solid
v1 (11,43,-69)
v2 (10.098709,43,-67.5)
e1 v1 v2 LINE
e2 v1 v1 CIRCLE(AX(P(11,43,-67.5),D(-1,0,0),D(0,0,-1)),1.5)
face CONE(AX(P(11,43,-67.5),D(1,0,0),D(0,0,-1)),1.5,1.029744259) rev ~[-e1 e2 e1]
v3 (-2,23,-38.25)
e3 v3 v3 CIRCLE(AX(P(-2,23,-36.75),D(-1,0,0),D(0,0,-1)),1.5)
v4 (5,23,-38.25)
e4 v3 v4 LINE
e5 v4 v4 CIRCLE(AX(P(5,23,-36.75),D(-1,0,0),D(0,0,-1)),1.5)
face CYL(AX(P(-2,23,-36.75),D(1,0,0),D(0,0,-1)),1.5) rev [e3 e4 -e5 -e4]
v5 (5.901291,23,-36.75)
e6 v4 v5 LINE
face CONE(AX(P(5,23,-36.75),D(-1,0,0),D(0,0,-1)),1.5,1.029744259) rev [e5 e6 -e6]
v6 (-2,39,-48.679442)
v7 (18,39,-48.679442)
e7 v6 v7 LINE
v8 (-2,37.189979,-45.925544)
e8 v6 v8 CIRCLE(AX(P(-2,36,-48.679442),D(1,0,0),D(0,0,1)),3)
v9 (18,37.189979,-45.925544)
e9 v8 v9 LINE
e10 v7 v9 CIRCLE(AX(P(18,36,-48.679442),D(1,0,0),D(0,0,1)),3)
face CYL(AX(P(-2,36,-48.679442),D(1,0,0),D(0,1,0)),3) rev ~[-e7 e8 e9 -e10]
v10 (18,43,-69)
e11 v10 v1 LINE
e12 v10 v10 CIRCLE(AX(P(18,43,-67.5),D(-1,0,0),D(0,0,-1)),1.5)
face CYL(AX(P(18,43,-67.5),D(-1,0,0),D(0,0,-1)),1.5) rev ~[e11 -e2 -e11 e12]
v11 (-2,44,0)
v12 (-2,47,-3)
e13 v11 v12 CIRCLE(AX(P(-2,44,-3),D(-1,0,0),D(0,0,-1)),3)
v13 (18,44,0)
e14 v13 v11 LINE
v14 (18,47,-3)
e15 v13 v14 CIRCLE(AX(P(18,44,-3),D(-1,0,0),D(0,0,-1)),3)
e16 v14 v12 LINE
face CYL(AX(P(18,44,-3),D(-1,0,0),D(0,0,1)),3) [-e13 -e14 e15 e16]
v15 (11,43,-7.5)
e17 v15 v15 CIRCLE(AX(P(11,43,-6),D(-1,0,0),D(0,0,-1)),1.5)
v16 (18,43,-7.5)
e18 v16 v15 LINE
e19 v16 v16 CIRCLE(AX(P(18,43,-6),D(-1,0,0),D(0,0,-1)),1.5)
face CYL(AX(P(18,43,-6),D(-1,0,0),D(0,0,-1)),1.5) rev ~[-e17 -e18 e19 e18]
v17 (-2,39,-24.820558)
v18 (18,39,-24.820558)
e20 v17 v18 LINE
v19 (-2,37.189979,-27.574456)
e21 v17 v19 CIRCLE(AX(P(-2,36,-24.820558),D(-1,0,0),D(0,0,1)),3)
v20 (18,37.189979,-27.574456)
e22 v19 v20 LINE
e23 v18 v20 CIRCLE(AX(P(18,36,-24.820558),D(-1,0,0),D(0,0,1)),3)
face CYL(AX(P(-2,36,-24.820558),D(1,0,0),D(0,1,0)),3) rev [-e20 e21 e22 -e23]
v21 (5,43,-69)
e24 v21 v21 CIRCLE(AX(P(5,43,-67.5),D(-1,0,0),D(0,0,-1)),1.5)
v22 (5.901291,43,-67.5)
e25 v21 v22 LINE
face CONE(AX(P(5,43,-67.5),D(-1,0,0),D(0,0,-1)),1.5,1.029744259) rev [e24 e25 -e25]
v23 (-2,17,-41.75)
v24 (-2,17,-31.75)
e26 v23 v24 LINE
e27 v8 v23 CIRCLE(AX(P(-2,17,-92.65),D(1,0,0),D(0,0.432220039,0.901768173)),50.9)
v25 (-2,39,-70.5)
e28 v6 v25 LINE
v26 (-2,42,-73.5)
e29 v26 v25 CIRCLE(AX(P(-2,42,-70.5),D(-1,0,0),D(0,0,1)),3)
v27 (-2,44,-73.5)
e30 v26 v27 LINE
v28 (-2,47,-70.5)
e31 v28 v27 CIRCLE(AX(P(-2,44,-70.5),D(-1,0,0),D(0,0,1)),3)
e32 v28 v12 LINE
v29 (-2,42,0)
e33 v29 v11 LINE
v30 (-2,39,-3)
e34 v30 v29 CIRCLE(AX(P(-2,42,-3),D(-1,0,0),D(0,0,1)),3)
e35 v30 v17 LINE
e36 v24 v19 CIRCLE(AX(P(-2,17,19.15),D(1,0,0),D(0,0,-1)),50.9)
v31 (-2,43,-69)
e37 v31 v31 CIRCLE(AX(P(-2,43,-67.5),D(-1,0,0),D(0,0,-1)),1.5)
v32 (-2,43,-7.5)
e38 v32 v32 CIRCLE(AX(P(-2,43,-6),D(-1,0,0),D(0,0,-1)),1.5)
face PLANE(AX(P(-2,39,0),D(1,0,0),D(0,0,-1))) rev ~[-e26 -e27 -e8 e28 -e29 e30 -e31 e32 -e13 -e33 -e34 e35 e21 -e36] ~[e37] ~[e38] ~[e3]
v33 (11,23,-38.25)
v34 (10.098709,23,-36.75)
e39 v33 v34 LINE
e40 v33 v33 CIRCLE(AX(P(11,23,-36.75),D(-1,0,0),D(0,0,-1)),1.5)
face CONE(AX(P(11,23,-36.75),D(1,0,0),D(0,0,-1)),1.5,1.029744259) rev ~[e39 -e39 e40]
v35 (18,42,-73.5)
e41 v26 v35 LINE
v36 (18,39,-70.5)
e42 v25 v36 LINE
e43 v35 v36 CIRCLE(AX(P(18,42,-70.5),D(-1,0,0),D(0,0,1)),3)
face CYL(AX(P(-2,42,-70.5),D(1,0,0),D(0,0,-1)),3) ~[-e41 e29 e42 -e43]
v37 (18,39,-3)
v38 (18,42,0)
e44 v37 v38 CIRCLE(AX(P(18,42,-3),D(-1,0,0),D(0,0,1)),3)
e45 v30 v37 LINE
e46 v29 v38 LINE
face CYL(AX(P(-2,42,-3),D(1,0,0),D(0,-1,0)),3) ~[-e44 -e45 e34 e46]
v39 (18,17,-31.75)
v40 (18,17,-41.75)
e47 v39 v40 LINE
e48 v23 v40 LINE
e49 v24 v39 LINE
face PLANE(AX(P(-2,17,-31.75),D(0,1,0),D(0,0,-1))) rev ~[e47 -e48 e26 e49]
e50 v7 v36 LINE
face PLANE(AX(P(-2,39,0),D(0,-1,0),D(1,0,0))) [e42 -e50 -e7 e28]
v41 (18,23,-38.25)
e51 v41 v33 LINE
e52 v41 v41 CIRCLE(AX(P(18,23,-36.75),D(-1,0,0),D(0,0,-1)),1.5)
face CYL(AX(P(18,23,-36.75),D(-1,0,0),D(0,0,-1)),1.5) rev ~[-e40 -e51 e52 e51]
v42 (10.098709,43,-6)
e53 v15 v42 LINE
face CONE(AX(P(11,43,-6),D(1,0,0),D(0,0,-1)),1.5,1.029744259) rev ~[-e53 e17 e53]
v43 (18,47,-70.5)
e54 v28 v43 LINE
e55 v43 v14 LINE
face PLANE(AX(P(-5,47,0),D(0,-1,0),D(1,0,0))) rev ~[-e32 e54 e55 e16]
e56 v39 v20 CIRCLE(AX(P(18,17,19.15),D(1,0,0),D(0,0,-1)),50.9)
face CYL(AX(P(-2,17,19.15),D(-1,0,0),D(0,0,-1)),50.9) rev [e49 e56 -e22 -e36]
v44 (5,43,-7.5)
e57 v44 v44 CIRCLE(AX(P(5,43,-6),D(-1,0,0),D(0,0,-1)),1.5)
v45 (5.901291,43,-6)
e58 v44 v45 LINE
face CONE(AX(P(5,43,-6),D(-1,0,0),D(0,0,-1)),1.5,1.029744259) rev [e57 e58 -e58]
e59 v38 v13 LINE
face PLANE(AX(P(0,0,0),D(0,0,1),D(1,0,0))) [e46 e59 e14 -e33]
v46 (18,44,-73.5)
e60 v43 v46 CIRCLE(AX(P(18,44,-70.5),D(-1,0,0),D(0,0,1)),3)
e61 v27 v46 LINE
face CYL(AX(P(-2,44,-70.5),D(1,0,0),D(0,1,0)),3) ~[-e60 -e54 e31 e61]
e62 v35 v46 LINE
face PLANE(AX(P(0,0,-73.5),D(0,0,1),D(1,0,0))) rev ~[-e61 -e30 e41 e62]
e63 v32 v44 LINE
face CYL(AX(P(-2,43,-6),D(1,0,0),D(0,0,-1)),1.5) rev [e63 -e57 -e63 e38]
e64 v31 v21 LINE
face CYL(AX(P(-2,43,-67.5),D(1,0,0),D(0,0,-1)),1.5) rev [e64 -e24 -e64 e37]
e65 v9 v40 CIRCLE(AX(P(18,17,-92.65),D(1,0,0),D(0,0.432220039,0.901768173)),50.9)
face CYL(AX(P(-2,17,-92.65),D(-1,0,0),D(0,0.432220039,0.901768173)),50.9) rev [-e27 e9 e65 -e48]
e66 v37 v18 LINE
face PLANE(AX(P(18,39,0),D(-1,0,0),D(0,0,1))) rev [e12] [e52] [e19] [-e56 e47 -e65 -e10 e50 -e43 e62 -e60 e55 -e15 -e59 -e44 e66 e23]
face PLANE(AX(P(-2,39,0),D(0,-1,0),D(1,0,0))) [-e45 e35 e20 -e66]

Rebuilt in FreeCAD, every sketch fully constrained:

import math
import FreeCAD as App
import Part
import Sketcher
from FreeCAD import Vector


def edges_at(feature, points):
    """Names of the edges that pass closest to the given points."""
    edges = feature.Shape.Edges
    near = lambda p: min(range(len(edges)), key=lambda i: edges[i].distToShape(Part.Vertex(*p))[0])
    return sorted({f"Edge{near(p) + 1}" for p in points})

doc = App.newDocument("Part")
body = doc.addObject("PartDesign::Body", "Body")

sketch1 = body.newObject("Sketcher::SketchObject", "Sketch")
sketch1.AttachmentSupport = (doc.getObject("XY_Plane"), [""])
sketch1.MapMode = "FlatFace"
sketch1.addGeometry([
    Part.LineSegment(Vector(-5, 0, 0), Vector(-2, 0, 0)),
    Part.LineSegment(Vector(-2, 0, 0), Vector(-2, 39, 0)),
    Part.LineSegment(Vector(-2, 39, 0), Vector(18, 39, 0)),
    Part.LineSegment(Vector(18, 39, 0), Vector(18, 0, 0)),
    Part.LineSegment(Vector(18, 0, 0), Vector(21, 0, 0)),
    Part.LineSegment(Vector(21, 0, 0), Vector(21, 47, 0)),
    Part.LineSegment(Vector(21, 47, 0), Vector(-5, 47, 0)),
    Part.LineSegment(Vector(-5, 47, 0), Vector(-5, 0, 0)),
], False)
sketch1.addConstraint([
    Sketcher.Constraint("Coincident", 0, 2, 1, 1),
    Sketcher.Constraint("Coincident", 1, 2, 2, 1),
    Sketcher.Constraint("Coincident", 2, 2, 3, 1),
    Sketcher.Constraint("Coincident", 3, 2, 4, 1),
    Sketcher.Constraint("Coincident", 4, 2, 5, 1),
    Sketcher.Constraint("Coincident", 5, 2, 6, 1),
    Sketcher.Constraint("Coincident", 6, 2, 7, 1),
    Sketcher.Constraint("Coincident", 7, 2, 0, 1),
    Sketcher.Constraint("Horizontal", 0),
    Sketcher.Constraint("Vertical", 1),
    Sketcher.Constraint("Horizontal", 2),
    Sketcher.Constraint("Vertical", 3),
    Sketcher.Constraint("Horizontal", 4),
    Sketcher.Constraint("Vertical", 5),
    Sketcher.Constraint("Horizontal", 6),
    Sketcher.Constraint("Vertical", 7),
    Sketcher.Constraint("PointOnObject", 0, 2, -1),
    Sketcher.Constraint("PointOnObject", 3, 2, -1),
    Sketcher.Constraint("Equal", 0, 4),
    Sketcher.Constraint("DistanceX", 0, 1, 0, 2, 3.0),
    Sketcher.Constraint("DistanceY", 1, 1, 1, 2, 39.0),
    Sketcher.Constraint("DistanceX", 0, 2, -1, 1, 2.0),
    Sketcher.Constraint("DistanceY", 2, 2, 5, 2, 8.0),
    Sketcher.Constraint("DistanceX", 2, 1, 2, 2, 20.0),
])
pad1 = body.newObject("PartDesign::Pad", "Pad")
pad1.Profile = sketch1
pad1.Length = 73.5
pad1.Reversed = True

sketch2 = body.newObject("Sketcher::SketchObject", "Sketch001")
sketch2.AttachmentSupport = (doc.getObject("YZ_Plane"), [""])
sketch2.MapMode = "FlatFace"
sketch2.AttachmentOffset = App.Placement(Vector(0, 0, -5), App.Rotation())
sketch2.addGeometry([
    Part.Circle(Vector(22.5, -12, 0), Vector(0, 0, 1), 3),
    Part.Circle(Vector(22.5, -61.5, 0), Vector(0, 0, 1), 3),
], False)
sketch2.addConstraint([
    Sketcher.Constraint("Equal", 0, 1),
    Sketcher.Constraint("Vertical", 0, 3, 1, 3),
    Sketcher.Constraint("Diameter", 0, 6.0),
    Sketcher.Constraint("DistanceY", 0, 3, -1, 1, 12.0),
    Sketcher.Constraint("DistanceX", -1, 1, 0, 3, 22.5),
    Sketcher.Constraint("DistanceY", 1, 3, -1, 1, 61.5),
])
pocket1 = body.newObject("PartDesign::Pocket", "Pocket")
pocket1.Profile = sketch2
pocket1.Type = "ThroughAll"
pocket1.Reversed = True

sketch3 = body.newObject("Sketcher::SketchObject", "Sketch002")
sketch3.AttachmentSupport = (doc.getObject("YZ_Plane"), [""])
sketch3.MapMode = "FlatFace"
sketch3.AttachmentOffset = App.Placement(Vector(0, 0, -5), App.Rotation())
sketch3.addGeometry([
    Part.LineSegment(Vector(-64, -25, 0), Vector(0, 0, 0)),
    Part.LineSegment(Vector(0, 0, 0), Vector(0, -74, 0)),
    Part.LineSegment(Vector(0, -74, 0), Vector(-64, -49, 0)),
    Part.ArcOfCircle(Part.Circle(Vector(-60, -37, 0), Vector(0, 0, 1), 13), math.radians(111), math.radians(249)),
    Part.Circle(Vector(-60, -37, 0), Vector(0, 0, 1), 5),
], False)
sketch3.addConstraint([
    Sketcher.Constraint("Coincident", 0, 2, 1, 1),
    Sketcher.Constraint("Coincident", 1, 2, 2, 1),
    Sketcher.Constraint("Tangent", 2, 2, 3, 2),
    Sketcher.Constraint("Tangent", 3, 1, 0, 1),
    Sketcher.Constraint("Vertical", 1),
    Sketcher.Constraint("Coincident", 0, 2, -1, 1),
    Sketcher.Constraint("Coincident", 4, 3, 3, 3),
    Sketcher.Constraint("Vertical", 2, 2, 3, 1),
    Sketcher.Constraint("Diameter", 4, 10.0),
    Sketcher.Constraint("Radius", 3, 13.0),
    Sketcher.Constraint("DistanceY", 1, 2, 1, 1, 73.5),
    Sketcher.Constraint("DistanceX", 3, 3, -1, 1, 59.712),
])
pad2 = body.newObject("PartDesign::Pad", "Pad001")
pad2.Profile = sketch3
pad2.Length = 3
doc.recompute()

datumplane = body.newObject("PartDesign::Plane", "DatumPlane")
datumplane.AttachmentSupport = (doc.getObject("YZ_Plane"), [""])
datumplane.MapMode = "FlatFace"
datumplane.AttachmentOffset = App.Placement(Vector(0, 0, 8), App.Rotation())
mirrored = body.newObject("PartDesign::Mirrored", "Mirrored")
mirrored.Originals = [pad2]
mirrored.MirrorPlane = (datumplane, [""])
body.Tip = mirrored

sketch4 = body.newObject("Sketcher::SketchObject", "Sketch003")
sketch4.AttachmentSupport = (doc.getObject("YZ_Plane"), [""])
sketch4.MapMode = "FlatFace"
sketch4.AttachmentOffset = App.Placement(Vector(0, 0, -2), App.Rotation())
sketch4.addGeometry([
    Part.ArcOfCircle(Part.Circle(Vector(17, 19, 0), Vector(0, 0, 1), 51), math.radians(-90), math.radians(-64)),
    Part.LineSegment(Vector(17, -32, 0), Vector(17, -42, 0)),
    Part.ArcOfCircle(Part.Circle(Vector(17, -93, 0), Vector(0, 0, 1), 51), math.radians(64), math.radians(90)),
    Part.LineSegment(Vector(39, -47, 0), Vector(39, -27, 0)),
], False)
sketch4.addConstraint([
    Sketcher.Constraint("Coincident", 0, 1, 1, 1),
    Sketcher.Constraint("Coincident", 1, 2, 2, 2),
    Sketcher.Constraint("Coincident", 2, 1, 3, 1),
    Sketcher.Constraint("Coincident", 3, 2, 0, 2),
    Sketcher.Constraint("Vertical", 1),
    Sketcher.Constraint("Vertical", 3),
    Sketcher.Constraint("Equal", 0, 2),
    Sketcher.Constraint("Vertical", 0, 3, 2, 3),
    Sketcher.Constraint("Vertical", 2, 3, 0, 1),
    Sketcher.Constraint("DistanceY", 1, 2, 1, 1, 10.0),
    Sketcher.Constraint("Radius", 0, 50.9),
    Sketcher.Constraint("DistanceY", 3, 1, 3, 2, 20.0),
    Sketcher.Constraint("DistanceX", -1, 1, 0, 3, 17.0),
    Sketcher.Constraint("DistanceY", -1, 1, 0, 3, 19.15),
])
pad3 = body.newObject("PartDesign::Pad", "Pad002")
pad3.Profile = sketch4
pad3.Length = 20

sketch5 = body.newObject("Sketcher::SketchObject", "Sketch004")
sketch5.AttachmentSupport = (doc.getObject("YZ_Plane"), [""])
sketch5.MapMode = "FlatFace"
sketch5.AttachmentOffset = App.Placement(Vector(0, 0, -2), App.Rotation())
sketch5.addGeometry([
    Part.LineSegment(Vector(63, -93, 0), Vector(63, 19, 0)),
    Part.LineSegment(Vector(63, 19, 0), Vector(-88, 19, 0)),
    Part.LineSegment(Vector(-88, 19, 0), Vector(-88, -93, 0)),
    Part.LineSegment(Vector(-88, -93, 0), Vector(63, -93, 0)),
], False)
sketch5.addConstraint([
    Sketcher.Constraint("Coincident", 0, 2, 1, 1),
    Sketcher.Constraint("Coincident", 1, 2, 2, 1),
    Sketcher.Constraint("Coincident", 2, 2, 3, 1),
    Sketcher.Constraint("Coincident", 3, 2, 0, 1),
    Sketcher.Constraint("Vertical", 0),
    Sketcher.Constraint("Horizontal", 1),
    Sketcher.Constraint("Vertical", 2),
    Sketcher.Constraint("Horizontal", 3),
    Sketcher.Constraint("DistanceY", 0, 1, 0, 2, 111.8),
    Sketcher.Constraint("DistanceX", 1, 2, 1, 1, 150.204),
    Sketcher.Constraint("DistanceY", -1, 1, 0, 2, 19.15),
    Sketcher.Constraint("DistanceX", 1, 2, -1, 1, 87.647),
])
pocket2 = body.newObject("PartDesign::Pocket", "Pocket001")
pocket2.Profile = sketch5
pocket2.Length = 10
doc.recompute()

datumplane2 = body.newObject("PartDesign::Plane", "DatumPlane001")
datumplane2.AttachmentSupport = (doc.getObject("YZ_Plane"), [""])
datumplane2.MapMode = "FlatFace"
datumplane2.AttachmentOffset = App.Placement(Vector(0, 0, 8), App.Rotation())
mirrored2 = body.newObject("PartDesign::Mirrored", "Mirrored001")
mirrored2.Originals = [pocket2]
mirrored2.MirrorPlane = (datumplane2, [""])
body.Tip = mirrored2

sketch6 = body.newObject("Sketcher::SketchObject", "Sketch005")
sketch6.AttachmentSupport = (doc.getObject("YZ_Plane"), [""])
sketch6.MapMode = "FlatFace"
sketch6.AttachmentOffset = App.Placement(Vector(0, 0, 18), App.Rotation())
sketch6.addGeometry([
    Part.Circle(Vector(43, -6, 0), Vector(0, 0, 1), 1.5),
    Part.Circle(Vector(43, -67.5, 0), Vector(0, 0, 1), 1.5),
    Part.Circle(Vector(23, -36.8, 0), Vector(0, 0, 1), 1.5),
], False)
sketch6.addConstraint([
    Sketcher.Constraint("Equal", 0, 1),
    Sketcher.Constraint("Equal", 1, 2),
    Sketcher.Constraint("Vertical", 0, 3, 1, 3),
    Sketcher.Constraint("Diameter", 0, 3.0),
    Sketcher.Constraint("DistanceX", -1, 1, 0, 3, 43.0),
    Sketcher.Constraint("DistanceY", 0, 3, -1, 1, 6.0),
    Sketcher.Constraint("DistanceX", -1, 1, 2, 3, 23.0),
    Sketcher.Constraint("DistanceY", 1, 3, -1, 1, 67.5),
    Sketcher.Constraint("DistanceY", 2, 3, -1, 1, 36.75),
])
doc.recompute()
hole = body.newObject("PartDesign::Hole", "Hole")
hole.Profile = sketch6
hole.ThreadType = "None"
hole.Diameter = 3
hole.DepthType = "Dimension"
hole.Depth = 7
hole.DrillPoint = "Angled"
hole.DrillPointAngle = 118
doc.recompute()

datumplane3 = body.newObject("PartDesign::Plane", "DatumPlane002")
datumplane3.AttachmentSupport = (doc.getObject("YZ_Plane"), [""])
datumplane3.MapMode = "FlatFace"
datumplane3.AttachmentOffset = App.Placement(Vector(0, 0, 8), App.Rotation())
mirrored3 = body.newObject("PartDesign::Mirrored", "Mirrored002")
mirrored3.Originals = [hole]
mirrored3.MirrorPlane = (datumplane3, [""])
body.Tip = mirrored3
doc.recompute()

fillet = body.newObject("PartDesign::Fillet", "Fillet")
fillet.Base = (mirrored3, edges_at(mirrored3, [(8, 39, -46.75), (8, 39, -26.75)]))
fillet.Radius = 3
doc.recompute()

fillet2 = body.newObject("PartDesign::Fillet", "Fillet001")
fillet2.Base = (fillet, edges_at(fillet, [
    (8, 47, 0),
    (8, 47, -73.5),
    (8, 39, 0),
    (8, 39, -73.5),
]))
fillet2.Radius = 3

doc.recompute()
